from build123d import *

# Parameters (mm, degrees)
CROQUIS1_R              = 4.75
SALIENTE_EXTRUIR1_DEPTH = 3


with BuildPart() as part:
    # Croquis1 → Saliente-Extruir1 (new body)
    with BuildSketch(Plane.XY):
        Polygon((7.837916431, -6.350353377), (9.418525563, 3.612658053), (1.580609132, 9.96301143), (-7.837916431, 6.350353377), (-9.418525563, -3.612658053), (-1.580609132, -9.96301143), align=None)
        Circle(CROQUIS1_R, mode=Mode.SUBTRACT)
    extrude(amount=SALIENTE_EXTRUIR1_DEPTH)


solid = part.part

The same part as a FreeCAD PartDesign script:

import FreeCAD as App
import Part
import Sketcher
from FreeCAD import Vector


def add_polygon(sketch, points):
    """Adds a closed chain of lines whose ends are joined by coincident constraints."""
    first, n = sketch.GeometryCount, len(points)
    for a, b in zip(points, points[1:] + points[:1]):
        sketch.addGeometry(Part.LineSegment(App.Vector(*a, 0), App.Vector(*b, 0)), False)
    for i in range(n):
        sketch.addConstraint(Sketcher.Constraint("Coincident", first + i, 2, first + (i + 1) % n, 1))

doc = App.newDocument("Part")
body = doc.addObject("PartDesign::Body", "Body")

sketch1 = body.newObject("Sketcher::SketchObject", "Sketch")
sketch1.AttachmentSupport = (doc.getObject("XY_Plane"), [""])
sketch1.MapMode = "FlatFace"
add_polygon(sketch1, [(7.837916, -6.350353), (9.418526, 3.612658), (1.580609, 9.963011), (-7.837916, 6.350353), (-9.418526, -3.612658), (-1.580609, -9.963011)])
sketch1.addGeometry(Part.Circle(Vector(0, 0, 0), Vector(0, 0, 1), 4.75), False)
sketch1.addConstraint(Sketcher.Constraint("Coincident", 6, 3, -1, 1))
sketch1.addConstraint(Sketcher.Constraint("Symmetric", 0, 2, 3, 2, -1, 1))
sketch1.addConstraint(Sketcher.Constraint("Symmetric", 1, 2, 4, 2, -1, 1))
sketch1.addConstraint(Sketcher.Constraint("Symmetric", 2, 2, 5, 2, -1, 1))
sketch1.addConstraint(Sketcher.Constraint("Equal", 0, 1))
sketch1.addConstraint(Sketcher.Constraint("Equal", 1, 2))
sketch1.addConstraint(Sketcher.Constraint("Diameter", 6, 9.5))
sketch1.addConstraint(Sketcher.Constraint("DistanceY", -1, 1, 0, 2, 3.612658))
sketch1.addConstraint(Sketcher.Constraint("DistanceX", -1, 1, 1, 2, 1.580609))
sketch1.addConstraint(Sketcher.Constraint("DistanceY", -1, 1, 1, 2, 9.963011))
sketch1.addConstraint(Sketcher.Constraint("DistanceY", 2, 2, 1, 2, 3.612658))
pad1 = body.newObject("PartDesign::Pad", "Pad")
pad1.Profile = sketch1
pad1.Length = 3

doc.recompute()
